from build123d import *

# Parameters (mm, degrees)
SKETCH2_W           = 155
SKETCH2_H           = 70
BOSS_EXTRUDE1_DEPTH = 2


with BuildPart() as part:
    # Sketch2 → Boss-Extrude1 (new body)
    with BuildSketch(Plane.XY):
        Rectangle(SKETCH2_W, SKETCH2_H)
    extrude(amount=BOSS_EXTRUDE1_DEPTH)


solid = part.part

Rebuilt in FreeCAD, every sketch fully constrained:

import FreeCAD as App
import Part
import Sketcher
from FreeCAD import Vector
Q = App.Units.Quantity


def add_polygon(sketch, points):
    """Adds a closed chain of lines whose ends are joined by coincident constraints."""
    first, n = sketch.GeometryCount, len(points)
    for a, b in zip(points, points[1:] + points[:1]):
        sketch.addGeometry(Part.LineSegment(App.Vector(*a, 0), App.Vector(*b, 0)), False)
    for i in range(n):
        sketch.addConstraint(Sketcher.Constraint("Coincident", first + i, 2, first + (i + 1) % n, 1))

doc = App.newDocument("Part")
body = doc.addObject("PartDesign::Body", "Body")

sketch1 = body.newObject("Sketcher::SketchObject", "Sketch")
sketch1.AttachmentSupport = (doc.getObject("XY_Plane"), [""])
sketch1.MapMode = "FlatFace"
add_polygon(sketch1, [(-78, 35), (-78, -35), (78, -35), (78, 35)])
sketch1.addConstraint([
    Sketcher.Constraint("Vertical", 0),
    Sketcher.Constraint("Horizontal", 1),
    Sketcher.Constraint("Vertical", 2),
    Sketcher.Constraint("Horizontal", 3),
    Sketcher.Constraint("Symmetric", 0, 2, 2, 2, -1, 1),
    Sketcher.Constraint("DistanceX", 1, 1, 1, 2, Q("155 mm")),
    Sketcher.Constraint("DistanceY", 0, 2, 0, 1, Q("70 mm")),
])
pad1 = body.newObject("PartDesign::Pad", "Pad")
pad1.Profile = sketch1
pad1.Length = 2

doc.recompute()
